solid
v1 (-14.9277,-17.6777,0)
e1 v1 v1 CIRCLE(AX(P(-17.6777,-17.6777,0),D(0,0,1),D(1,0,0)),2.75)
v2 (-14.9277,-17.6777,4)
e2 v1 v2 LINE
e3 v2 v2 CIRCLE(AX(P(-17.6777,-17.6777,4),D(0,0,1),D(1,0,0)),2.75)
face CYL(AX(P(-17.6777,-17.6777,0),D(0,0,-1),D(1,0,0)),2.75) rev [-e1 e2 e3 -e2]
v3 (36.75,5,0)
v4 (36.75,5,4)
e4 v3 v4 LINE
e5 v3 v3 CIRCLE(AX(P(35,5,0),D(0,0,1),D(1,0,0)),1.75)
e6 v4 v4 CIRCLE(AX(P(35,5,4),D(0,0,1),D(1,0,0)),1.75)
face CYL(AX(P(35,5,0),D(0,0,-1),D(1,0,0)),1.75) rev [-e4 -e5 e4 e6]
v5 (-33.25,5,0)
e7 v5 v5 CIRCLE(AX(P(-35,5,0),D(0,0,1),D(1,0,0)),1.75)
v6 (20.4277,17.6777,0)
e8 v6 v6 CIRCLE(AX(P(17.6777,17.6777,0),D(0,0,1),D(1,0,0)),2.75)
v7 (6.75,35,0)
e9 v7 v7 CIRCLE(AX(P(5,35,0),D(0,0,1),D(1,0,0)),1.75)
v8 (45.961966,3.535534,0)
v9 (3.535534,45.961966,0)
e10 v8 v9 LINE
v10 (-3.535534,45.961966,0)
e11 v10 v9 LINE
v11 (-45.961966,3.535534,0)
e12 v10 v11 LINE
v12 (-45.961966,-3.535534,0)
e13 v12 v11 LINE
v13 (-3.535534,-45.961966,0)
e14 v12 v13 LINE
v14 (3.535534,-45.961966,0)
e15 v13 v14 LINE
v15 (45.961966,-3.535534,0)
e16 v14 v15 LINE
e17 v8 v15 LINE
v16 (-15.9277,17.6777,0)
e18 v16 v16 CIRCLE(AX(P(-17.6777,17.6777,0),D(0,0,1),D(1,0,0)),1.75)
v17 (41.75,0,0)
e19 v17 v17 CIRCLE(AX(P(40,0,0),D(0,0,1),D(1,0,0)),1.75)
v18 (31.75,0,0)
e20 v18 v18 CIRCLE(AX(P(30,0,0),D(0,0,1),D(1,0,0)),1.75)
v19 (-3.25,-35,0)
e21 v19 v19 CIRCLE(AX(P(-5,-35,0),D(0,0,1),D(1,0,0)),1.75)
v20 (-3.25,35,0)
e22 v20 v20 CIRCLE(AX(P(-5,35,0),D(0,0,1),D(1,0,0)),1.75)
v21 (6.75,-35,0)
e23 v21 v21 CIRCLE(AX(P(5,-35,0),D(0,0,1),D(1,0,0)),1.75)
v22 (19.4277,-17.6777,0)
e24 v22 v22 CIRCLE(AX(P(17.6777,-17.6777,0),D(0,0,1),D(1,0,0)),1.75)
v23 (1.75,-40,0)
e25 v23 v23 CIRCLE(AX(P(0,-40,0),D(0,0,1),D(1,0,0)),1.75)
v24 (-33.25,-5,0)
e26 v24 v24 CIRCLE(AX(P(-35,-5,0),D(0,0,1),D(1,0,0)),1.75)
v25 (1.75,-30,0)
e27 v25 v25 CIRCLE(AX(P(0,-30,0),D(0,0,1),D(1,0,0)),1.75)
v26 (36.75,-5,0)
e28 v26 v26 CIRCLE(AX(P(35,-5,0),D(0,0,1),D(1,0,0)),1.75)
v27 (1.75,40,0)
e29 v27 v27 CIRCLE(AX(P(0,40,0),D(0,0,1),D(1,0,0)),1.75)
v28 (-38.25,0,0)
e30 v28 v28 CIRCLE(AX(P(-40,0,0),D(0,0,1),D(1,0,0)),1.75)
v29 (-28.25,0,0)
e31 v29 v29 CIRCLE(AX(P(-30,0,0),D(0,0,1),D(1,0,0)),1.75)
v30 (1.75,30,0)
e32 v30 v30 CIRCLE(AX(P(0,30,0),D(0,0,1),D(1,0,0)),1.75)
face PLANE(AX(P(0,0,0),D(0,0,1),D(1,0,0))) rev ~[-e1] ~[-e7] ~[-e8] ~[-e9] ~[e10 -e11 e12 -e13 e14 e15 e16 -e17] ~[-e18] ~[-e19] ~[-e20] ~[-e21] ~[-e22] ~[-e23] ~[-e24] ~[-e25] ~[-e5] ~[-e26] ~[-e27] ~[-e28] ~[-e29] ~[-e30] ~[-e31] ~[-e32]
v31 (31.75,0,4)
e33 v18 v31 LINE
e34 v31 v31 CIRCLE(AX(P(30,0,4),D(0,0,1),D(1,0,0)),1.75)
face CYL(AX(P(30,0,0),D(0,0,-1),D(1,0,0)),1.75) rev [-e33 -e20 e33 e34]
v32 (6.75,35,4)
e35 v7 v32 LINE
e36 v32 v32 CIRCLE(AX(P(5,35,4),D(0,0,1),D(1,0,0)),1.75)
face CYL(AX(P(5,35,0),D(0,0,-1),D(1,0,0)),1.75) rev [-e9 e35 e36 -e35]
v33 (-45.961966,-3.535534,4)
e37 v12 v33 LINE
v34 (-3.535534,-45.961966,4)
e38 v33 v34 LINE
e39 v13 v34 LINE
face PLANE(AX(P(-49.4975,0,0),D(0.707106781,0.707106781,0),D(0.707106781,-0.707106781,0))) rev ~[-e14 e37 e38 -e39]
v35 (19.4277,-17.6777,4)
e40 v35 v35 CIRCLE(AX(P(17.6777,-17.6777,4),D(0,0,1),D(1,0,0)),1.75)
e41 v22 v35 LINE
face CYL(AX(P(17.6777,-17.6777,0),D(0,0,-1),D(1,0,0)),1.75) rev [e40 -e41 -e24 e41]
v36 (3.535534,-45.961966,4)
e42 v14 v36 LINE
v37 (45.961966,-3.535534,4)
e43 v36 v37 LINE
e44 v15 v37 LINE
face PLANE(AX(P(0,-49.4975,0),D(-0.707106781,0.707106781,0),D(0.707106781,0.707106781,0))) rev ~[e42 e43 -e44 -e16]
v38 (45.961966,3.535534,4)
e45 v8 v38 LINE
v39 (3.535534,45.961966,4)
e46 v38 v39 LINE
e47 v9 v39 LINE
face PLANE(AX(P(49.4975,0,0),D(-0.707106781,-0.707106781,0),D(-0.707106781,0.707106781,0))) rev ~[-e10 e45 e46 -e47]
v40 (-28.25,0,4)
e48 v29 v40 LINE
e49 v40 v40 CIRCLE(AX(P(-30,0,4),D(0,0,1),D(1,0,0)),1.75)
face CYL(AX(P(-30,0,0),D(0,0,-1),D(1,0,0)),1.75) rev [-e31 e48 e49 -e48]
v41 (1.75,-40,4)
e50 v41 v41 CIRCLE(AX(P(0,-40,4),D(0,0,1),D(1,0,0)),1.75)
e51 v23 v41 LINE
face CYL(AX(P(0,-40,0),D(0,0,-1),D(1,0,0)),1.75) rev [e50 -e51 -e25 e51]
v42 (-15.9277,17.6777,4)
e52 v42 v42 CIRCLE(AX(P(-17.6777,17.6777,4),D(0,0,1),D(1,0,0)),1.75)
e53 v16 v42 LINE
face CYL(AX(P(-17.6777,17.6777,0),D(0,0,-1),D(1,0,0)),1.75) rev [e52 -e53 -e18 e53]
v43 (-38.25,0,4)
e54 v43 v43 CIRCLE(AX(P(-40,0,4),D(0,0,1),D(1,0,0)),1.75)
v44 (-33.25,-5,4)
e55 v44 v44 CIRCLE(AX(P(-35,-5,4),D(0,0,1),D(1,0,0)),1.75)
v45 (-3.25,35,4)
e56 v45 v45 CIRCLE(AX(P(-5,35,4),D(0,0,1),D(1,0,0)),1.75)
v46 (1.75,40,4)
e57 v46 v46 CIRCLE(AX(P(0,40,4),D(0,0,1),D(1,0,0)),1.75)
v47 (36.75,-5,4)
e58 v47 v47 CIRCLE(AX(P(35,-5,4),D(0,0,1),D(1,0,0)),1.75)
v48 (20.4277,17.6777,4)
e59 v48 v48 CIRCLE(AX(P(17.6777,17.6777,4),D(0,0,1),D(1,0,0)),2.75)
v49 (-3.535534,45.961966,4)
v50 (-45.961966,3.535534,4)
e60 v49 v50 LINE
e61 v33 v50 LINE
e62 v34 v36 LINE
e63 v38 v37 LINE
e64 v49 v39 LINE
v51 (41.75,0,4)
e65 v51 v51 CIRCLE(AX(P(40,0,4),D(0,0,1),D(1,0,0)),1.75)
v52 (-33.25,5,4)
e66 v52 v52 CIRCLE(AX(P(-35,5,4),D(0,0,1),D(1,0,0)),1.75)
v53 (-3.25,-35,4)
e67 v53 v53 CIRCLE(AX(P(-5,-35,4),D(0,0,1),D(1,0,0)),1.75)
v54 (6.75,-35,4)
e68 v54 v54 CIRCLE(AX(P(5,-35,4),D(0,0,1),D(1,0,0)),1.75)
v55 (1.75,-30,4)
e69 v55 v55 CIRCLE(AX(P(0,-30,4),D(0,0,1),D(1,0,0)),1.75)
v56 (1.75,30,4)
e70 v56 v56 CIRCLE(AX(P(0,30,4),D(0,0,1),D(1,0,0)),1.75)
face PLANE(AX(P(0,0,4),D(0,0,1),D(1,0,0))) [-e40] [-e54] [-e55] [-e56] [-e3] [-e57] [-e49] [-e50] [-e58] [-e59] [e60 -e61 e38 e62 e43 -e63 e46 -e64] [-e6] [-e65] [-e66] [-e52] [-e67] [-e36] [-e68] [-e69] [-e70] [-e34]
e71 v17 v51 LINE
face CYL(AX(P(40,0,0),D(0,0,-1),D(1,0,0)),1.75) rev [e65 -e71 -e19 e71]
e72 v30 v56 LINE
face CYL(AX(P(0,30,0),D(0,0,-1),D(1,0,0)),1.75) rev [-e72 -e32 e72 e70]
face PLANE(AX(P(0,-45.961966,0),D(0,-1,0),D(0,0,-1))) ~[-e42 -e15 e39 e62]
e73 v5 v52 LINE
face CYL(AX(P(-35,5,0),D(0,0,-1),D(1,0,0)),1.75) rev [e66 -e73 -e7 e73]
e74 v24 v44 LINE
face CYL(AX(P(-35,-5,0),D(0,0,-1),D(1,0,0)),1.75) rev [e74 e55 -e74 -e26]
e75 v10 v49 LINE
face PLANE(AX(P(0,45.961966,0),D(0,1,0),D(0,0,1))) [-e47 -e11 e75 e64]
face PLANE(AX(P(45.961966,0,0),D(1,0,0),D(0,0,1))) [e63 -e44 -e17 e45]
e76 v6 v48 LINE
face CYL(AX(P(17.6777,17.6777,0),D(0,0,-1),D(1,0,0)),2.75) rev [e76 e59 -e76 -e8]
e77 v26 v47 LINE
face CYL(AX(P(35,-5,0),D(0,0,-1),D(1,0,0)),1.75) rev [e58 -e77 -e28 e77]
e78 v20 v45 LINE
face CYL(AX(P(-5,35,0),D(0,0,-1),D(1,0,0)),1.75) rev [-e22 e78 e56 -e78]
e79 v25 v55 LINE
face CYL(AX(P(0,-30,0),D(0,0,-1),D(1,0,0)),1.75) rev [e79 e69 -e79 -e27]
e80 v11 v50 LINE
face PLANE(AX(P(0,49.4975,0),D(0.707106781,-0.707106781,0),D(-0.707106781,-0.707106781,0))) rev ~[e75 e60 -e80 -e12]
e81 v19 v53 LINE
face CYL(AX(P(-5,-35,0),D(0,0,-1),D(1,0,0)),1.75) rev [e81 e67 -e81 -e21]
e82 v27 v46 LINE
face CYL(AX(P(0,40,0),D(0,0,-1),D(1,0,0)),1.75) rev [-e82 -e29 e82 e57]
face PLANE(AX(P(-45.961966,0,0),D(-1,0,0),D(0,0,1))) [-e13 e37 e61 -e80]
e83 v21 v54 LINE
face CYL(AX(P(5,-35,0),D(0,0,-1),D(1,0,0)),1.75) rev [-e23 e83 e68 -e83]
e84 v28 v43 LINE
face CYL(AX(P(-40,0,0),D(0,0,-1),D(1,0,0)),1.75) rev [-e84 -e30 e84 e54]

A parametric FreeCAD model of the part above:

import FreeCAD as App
import Part
import Sketcher
from FreeCAD import Vector
Q = App.Units.Quantity


def edges_at(feature, points):
    """Names of the edges that pass closest to the given points."""
    edges = feature.Shape.Edges
    near = lambda p: min(range(len(edges)), key=lambda i: edges[i].distToShape(Part.Vertex(*p))[0])
    return sorted({f"Edge{near(p) + 1}" for p in points})

doc = App.newDocument("Part")
body = doc.addObject("PartDesign::Body", "Body")

# Sketch on XY plane
sketch1 = body.newObject("Sketcher::SketchObject", "Sketch")
sketch1.AttachmentSupport = (doc.getObject("XY_Plane"), [""])
sketch1.MapMode = "FlatFace"
sketch1.addGeometry([
    Part.LineSegment(Vector(-49.5, 0, 0), Vector(0, -49.5, 0)),  # 0
    Part.LineSegment(Vector(0, -49.5, 0), Vector(49.5, 0, 0)),  # 1
    Part.LineSegment(Vector(49.5, 0, 0), Vector(0, 49.5, 0)),  # 2
    Part.LineSegment(Vector(0, 49.5, 0), Vector(-49.5, 0, 0)),  # 3
    Part.Circle(Vector(-5, -35, 0), Vector(0, 0, 1), 1.8),  # 4
    Part.Circle(Vector(-35, -5, 0), Vector(0, 0, 1), 1.8),  # 5
    Part.Circle(Vector(-17.7, -17.7, 0), Vector(0, 0, 1), 2.8),  # 6
    Part.Circle(Vector(0, -40, 0), Vector(0, 0, 1), 1.8),  # 7
    Part.Circle(Vector(5, -35, 0), Vector(0, 0, 1), 1.8),  # 8
    Part.Circle(Vector(0, -30, 0), Vector(0, 0, 1), 1.8),  # 9
    Part.Circle(Vector(17.7, -17.7, 0), Vector(0, 0, 1), 1.8),  # 10
    Part.Circle(Vector(35, -5, 0), Vector(0, 0, 1), 1.8),  # 11
    Part.Circle(Vector(-40, 0, 0), Vector(0, 0, 1), 1.8),  # 12
    Part.Circle(Vector(-35, 5, 0), Vector(0, 0, 1), 1.8),  # 13
    Part.Circle(Vector(-30, 0, 0), Vector(0, 0, 1), 1.8),  # 14
    Part.Circle(Vector(-17.7, 17.7, 0), Vector(0, 0, 1), 1.8),  # 15
    Part.Circle(Vector(-5, 35, 0), Vector(0, 0, 1), 1.8),  # 16
    Part.Circle(Vector(17.7, 17.7, 0), Vector(0, 0, 1), 2.8),  # 17
    Part.Circle(Vector(30, 0, 0), Vector(0, 0, 1), 1.8),  # 18
    Part.Circle(Vector(35, 5, 0), Vector(0, 0, 1), 1.8),  # 19
    Part.Circle(Vector(40, 0, 0), Vector(0, 0, 1), 1.8),  # 20
    Part.Circle(Vector(0, 30, 0), Vector(0, 0, 1), 1.8),  # 21
    Part.Circle(Vector(5, 35, 0), Vector(0, 0, 1), 1.8),  # 22
    Part.Circle(Vector(0, 40, 0), Vector(0, 0, 1), 1.8),  # 23
], False)
sketch1.addConstraint([
    Sketcher.Constraint("Coincident", 0, 2, 1, 1),
    Sketcher.Constraint("Coincident", 1, 2, 2, 1),
    Sketcher.Constraint("Coincident", 2, 2, 3, 1),
    Sketcher.Constraint("Coincident", 3, 2, 0, 1),
    Sketcher.Constraint("Equal", 4, 5),
    Sketcher.Constraint("Equal", 5, 7),
    Sketcher.Constraint("Equal", 7, 8),
    Sketcher.Constraint("Equal", 8, 9),
    Sketcher.Constraint("Equal", 9, 10),
    Sketcher.Constraint("Equal", 10, 11),
    Sketcher.Constraint("Equal", 11, 12),
    Sketcher.Constraint("Equal", 12, 13),
    Sketcher.Constraint("Equal", 13, 14),
    Sketcher.Constraint("Equal", 14, 15),
    Sketcher.Constraint("Equal", 15, 16),
    Sketcher.Constraint("Equal", 6, 17),
    Sketcher.Constraint("Equal", 16, 18),
    Sketcher.Constraint("Equal", 18, 19),
    Sketcher.Constraint("Equal", 19, 20),
    Sketcher.Constraint("Equal", 20, 21),
    Sketcher.Constraint("Equal", 21, 22),
    Sketcher.Constraint("Equal", 22, 23),
    Sketcher.Constraint("Symmetric", 11, 3, 13, 3, -1, 1),
    Sketcher.Constraint("Symmetric", 10, 3, 15, 3, -1, 1),
    Sketcher.Constraint("Symmetric", 8, 3, 16, 3, -1, 1),
    Sketcher.Constraint("Symmetric", 6, 3, 17, 3, -1, 1),
    Sketcher.Constraint("Symmetric", 14, 3, 18, 3, -1, 1),
    Sketcher.Constraint("Symmetric", 5, 3, 19, 3, -1, 1),
    Sketcher.Constraint("Symmetric", 12, 3, 20, 3, -1, 1),
    Sketcher.Constraint("Symmetric", 9, 3, 21, 3, -1, 1),
    Sketcher.Constraint("Symmetric", 4, 3, 22, 3, -1, 1),
    Sketcher.Constraint("Symmetric", 7, 3, 23, 3, -1, 1),
    Sketcher.Constraint("Symmetric", 0, 2, 2, 2, -1, 1),
    Sketcher.Constraint("Symmetric", 1, 2, 3, 2, -1, 1),
    Sketcher.Constraint("Symmetric", 4, 3, 8, 3, -2),
    Sketcher.Constraint("Symmetric", 6, 3, 10, 3, -2),
    Sketcher.Constraint("Symmetric", 5, 3, 11, 3, -2),
    Sketcher.Constraint("PointOnObject", 7, 3, -2),
    Sketcher.Constraint("PointOnObject", 9, 3, -2),
    Sketcher.Constraint("PointOnObject", 12, 3, -1),
    Sketcher.Constraint("PointOnObject", 14, 3, -1),
    Sketcher.Constraint("PointOnObject", 0, 2, -2),
    Sketcher.Constraint("PointOnObject", 1, 2, -1),
    Sketcher.Constraint("Perpendicular", 0, 1),
    Sketcher.Constraint("Diameter", 4, Q("3.5 mm")),
    Sketcher.Constraint("Diameter", 6, Q("5.5 mm")),
    Sketcher.Constraint("Distance", 0, Q("70 mm")),
    Sketcher.Constraint("DistanceX", 4, 3, -1, 1, Q("5 mm")),
    Sketcher.Constraint("DistanceY", 4, 3, -1, 1, Q("35 mm")),
    Sketcher.Constraint("DistanceX", 5, 3, -1, 1, Q("35 mm")),
    Sketcher.Constraint("DistanceY", 5, 3, -1, 1, Q("5 mm")),
    Sketcher.Constraint("DistanceY", 7, 3, 4, 3, Q("5 mm")),
    Sketcher.Constraint("DistanceY", 4, 3, 9, 3, Q("5 mm")),
    Sketcher.Constraint("DistanceX", 12, 3, 5, 3, Q("5 mm")),
    Sketcher.Constraint("DistanceX", 5, 3, 14, 3, Q("5 mm")),
    Sketcher.Constraint("DistanceX", 6, 3, -1, 1, Q("17.6777 mm")),
    Sketcher.Constraint("DistanceY", 6, 3, -1, 1, Q("17.6777 mm")),
])
pad1 = body.newObject("PartDesign::Pad", "Pad")
pad1.Profile = sketch1
pad1.Length = 4
doc.recompute()

chamfer = body.newObject("PartDesign::Chamfer", "Chamfer")
chamfer.Base = (pad1, edges_at(pad1, [
    (0, -49.498, 2),
    (49.498, 0, 2),
    (0, 49.498, 2),
    (-49.498, 0, 2),
]))
chamfer.Size = 5

doc.recompute()
